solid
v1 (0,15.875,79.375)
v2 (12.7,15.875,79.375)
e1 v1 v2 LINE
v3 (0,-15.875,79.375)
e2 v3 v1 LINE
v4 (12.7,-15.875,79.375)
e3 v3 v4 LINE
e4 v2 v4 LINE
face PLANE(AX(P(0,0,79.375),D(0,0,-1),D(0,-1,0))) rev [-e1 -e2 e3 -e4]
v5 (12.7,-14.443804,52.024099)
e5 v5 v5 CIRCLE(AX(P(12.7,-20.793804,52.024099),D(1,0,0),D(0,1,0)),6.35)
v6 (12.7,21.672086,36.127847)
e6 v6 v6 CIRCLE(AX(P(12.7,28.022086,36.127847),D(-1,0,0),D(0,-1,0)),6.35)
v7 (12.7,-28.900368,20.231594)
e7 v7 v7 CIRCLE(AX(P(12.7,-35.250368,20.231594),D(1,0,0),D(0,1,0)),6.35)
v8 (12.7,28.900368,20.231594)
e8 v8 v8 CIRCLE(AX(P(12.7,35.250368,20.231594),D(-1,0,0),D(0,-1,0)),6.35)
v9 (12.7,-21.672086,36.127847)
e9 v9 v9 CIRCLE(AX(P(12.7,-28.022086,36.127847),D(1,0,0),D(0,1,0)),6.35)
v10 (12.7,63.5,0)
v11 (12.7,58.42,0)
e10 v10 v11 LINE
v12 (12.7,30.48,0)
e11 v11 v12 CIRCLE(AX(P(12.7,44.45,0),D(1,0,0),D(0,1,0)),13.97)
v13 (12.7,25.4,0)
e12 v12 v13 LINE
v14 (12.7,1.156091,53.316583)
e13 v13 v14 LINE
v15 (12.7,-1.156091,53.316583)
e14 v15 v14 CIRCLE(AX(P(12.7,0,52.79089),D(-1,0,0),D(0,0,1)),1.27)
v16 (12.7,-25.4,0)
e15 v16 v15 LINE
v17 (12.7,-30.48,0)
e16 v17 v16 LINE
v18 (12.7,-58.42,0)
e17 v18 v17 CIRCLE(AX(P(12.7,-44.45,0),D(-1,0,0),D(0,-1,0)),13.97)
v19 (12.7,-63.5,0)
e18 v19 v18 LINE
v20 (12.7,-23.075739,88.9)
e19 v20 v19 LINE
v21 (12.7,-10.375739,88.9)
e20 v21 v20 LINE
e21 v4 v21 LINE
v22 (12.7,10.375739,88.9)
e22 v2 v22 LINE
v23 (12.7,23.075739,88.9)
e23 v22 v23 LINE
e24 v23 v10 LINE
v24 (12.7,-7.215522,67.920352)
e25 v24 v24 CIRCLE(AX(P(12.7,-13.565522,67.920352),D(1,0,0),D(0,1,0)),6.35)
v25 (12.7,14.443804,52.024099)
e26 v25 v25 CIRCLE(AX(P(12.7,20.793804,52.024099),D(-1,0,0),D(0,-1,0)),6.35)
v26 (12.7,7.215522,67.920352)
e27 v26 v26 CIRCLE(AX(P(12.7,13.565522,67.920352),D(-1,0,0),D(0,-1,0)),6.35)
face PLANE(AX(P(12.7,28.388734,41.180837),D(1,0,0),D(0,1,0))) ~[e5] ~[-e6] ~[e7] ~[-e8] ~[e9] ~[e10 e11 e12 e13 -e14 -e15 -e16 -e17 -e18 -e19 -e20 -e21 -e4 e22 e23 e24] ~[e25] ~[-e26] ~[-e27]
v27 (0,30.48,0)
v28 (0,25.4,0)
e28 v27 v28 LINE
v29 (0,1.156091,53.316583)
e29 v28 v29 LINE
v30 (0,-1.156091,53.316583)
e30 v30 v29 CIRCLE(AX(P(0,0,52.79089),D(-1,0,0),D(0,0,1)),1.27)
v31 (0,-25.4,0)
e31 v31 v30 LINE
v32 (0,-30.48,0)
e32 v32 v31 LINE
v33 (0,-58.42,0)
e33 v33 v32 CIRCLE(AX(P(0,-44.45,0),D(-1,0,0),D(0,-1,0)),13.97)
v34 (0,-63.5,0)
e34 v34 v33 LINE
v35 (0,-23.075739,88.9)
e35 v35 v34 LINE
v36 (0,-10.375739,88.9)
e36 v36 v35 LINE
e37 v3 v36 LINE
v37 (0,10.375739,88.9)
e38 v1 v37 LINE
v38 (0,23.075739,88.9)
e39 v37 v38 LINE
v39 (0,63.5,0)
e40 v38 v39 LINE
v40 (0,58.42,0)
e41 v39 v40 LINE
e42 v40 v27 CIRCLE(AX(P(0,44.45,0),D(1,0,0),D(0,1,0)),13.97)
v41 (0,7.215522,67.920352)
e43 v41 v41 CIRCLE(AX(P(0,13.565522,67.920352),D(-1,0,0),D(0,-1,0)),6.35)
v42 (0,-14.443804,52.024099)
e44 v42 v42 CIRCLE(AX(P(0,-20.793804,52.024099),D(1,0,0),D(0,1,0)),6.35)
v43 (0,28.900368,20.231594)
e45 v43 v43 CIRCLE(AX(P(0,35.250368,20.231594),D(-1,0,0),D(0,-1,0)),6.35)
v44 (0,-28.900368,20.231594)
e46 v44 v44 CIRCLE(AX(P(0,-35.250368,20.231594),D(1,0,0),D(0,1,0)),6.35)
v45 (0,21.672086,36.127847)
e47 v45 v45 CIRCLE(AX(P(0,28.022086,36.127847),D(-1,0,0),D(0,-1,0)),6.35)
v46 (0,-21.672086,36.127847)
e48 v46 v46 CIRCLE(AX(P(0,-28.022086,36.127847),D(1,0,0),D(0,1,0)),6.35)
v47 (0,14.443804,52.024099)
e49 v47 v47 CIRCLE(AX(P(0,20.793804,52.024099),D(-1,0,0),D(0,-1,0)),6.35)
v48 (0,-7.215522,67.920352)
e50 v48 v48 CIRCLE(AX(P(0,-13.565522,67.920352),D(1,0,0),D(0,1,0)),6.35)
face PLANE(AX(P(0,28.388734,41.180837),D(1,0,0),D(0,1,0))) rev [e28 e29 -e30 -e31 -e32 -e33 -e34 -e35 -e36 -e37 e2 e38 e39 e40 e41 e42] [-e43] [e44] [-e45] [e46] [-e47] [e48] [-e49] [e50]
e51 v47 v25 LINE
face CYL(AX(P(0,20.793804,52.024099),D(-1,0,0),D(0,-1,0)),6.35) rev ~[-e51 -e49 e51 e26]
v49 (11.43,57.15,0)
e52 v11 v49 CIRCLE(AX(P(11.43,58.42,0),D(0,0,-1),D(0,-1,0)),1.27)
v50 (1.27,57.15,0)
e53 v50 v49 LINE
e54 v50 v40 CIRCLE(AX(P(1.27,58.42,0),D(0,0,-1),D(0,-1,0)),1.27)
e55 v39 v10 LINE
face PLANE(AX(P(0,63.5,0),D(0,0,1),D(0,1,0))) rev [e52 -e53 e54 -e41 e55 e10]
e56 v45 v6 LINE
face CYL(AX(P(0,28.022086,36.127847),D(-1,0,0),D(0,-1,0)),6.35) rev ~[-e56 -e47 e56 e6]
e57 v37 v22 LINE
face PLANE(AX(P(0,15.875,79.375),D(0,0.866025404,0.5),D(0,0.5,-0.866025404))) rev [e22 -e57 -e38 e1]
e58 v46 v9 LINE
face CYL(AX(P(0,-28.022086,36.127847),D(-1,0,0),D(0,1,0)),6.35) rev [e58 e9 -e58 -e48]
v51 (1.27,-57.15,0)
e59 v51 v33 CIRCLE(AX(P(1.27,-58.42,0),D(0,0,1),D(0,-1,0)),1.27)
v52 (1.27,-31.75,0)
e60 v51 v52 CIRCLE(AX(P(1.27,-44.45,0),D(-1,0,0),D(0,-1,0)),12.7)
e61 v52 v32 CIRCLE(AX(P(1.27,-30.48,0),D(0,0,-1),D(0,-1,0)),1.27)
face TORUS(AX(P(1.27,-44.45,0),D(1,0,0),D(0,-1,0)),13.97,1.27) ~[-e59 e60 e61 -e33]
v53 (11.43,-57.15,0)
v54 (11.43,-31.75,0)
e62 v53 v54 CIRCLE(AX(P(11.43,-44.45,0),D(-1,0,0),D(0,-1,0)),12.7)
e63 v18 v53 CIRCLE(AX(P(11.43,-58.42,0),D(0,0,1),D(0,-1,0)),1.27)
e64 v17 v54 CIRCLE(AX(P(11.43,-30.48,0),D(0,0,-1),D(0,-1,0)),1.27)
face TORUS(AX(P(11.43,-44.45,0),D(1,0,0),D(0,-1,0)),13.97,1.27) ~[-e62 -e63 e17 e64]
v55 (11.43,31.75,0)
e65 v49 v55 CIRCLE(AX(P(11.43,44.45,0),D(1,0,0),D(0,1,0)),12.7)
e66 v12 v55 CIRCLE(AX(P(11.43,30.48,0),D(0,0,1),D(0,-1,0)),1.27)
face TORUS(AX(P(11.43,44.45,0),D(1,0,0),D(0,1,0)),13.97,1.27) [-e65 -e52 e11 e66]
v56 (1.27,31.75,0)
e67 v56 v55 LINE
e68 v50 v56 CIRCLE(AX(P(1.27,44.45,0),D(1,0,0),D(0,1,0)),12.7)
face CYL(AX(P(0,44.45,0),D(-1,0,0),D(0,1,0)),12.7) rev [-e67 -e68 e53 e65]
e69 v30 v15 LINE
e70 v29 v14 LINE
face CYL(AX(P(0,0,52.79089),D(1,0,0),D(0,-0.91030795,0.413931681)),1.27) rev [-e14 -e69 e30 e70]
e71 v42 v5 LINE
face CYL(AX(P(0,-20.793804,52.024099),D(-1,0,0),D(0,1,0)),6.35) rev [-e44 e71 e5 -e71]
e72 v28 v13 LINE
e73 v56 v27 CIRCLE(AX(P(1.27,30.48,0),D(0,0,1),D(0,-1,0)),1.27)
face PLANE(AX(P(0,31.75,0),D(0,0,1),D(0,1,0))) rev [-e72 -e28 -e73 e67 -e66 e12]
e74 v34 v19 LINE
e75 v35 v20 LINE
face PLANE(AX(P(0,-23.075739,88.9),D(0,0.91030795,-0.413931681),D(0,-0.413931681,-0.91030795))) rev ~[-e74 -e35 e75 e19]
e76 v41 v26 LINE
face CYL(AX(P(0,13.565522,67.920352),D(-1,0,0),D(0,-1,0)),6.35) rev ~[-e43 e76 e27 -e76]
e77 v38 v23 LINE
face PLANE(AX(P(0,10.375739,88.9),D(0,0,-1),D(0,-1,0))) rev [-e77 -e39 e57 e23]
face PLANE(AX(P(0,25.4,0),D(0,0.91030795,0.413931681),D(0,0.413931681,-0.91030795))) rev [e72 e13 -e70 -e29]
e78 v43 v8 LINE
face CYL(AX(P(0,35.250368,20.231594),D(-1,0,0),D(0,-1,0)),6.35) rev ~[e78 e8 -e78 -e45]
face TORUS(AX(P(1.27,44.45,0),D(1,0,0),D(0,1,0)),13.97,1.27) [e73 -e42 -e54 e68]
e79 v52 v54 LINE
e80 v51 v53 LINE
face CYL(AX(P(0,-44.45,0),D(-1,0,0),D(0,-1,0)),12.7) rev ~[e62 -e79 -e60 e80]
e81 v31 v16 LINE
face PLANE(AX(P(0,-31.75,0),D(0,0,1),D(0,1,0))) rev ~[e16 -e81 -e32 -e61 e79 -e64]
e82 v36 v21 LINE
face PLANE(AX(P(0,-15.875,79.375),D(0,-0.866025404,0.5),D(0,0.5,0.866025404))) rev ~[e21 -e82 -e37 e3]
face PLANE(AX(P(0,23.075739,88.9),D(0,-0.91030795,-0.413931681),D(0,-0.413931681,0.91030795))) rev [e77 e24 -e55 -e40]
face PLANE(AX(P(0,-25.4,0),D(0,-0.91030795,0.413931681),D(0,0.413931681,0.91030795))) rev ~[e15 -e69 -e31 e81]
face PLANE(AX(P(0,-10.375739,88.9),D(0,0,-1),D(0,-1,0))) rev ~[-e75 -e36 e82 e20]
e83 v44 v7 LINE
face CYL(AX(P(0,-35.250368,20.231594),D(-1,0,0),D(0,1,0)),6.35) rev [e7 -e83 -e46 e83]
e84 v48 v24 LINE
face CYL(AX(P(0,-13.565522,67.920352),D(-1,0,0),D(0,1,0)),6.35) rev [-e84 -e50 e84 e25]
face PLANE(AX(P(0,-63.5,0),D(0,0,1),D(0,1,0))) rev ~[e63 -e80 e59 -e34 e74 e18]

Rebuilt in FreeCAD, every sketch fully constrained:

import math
import FreeCAD as App
import Part
import Sketcher

V = App.Vector
Q = App.Units.Quantity


def edges_at(feature, points):
    """Names of the edges that pass closest to the given points."""
    edges = feature.Shape.Edges
    near = lambda p: min(range(len(edges)), key=lambda i: edges[i].distToShape(Part.Vertex(*p))[0])
    return sorted({f"Edge{near(p) + 1}" for p in points})

doc = App.newDocument("Part")
body = doc.addObject("PartDesign::Body", "Body")

sketch1 = body.newObject("Sketcher::SketchObject", "Sketch")
sketch1.AttachmentSupport = (doc.getObject("YZ_Plane"), [""])
sketch1.MapMode = "FlatFace"
sketch1.addGeometry(Part.LineSegment(V(-23.075739, 88.9, 0), V(-63.5, 0, 0)), False)
sketch1.addGeometry(Part.LineSegment(V(-63.5, 0, 0), V(-57.15, 0, 0)), False)
sketch1.addGeometry(Part.ArcOfCircle(Part.Circle(V(-44.45, 0, 0), V(0, 0, 1), 12.7), math.radians(0), math.radians(180)), False)
sketch1.addGeometry(Part.LineSegment(V(-31.75, 0, 0), V(-25.4, 0, 0)), False)
sketch1.addGeometry(Part.LineSegment(V(-25.4, 0, 0), V(0, 55.859029, 0)), False)
sketch1.addGeometry(Part.LineSegment(V(0, 55.859029, 0), V(0, 79.375, 0)), False)
sketch1.addGeometry(Part.LineSegment(V(0, 79.375, 0), V(-15.875, 79.375, 0)), False)
sketch1.addGeometry(Part.LineSegment(V(-15.875, 79.375, 0), V(-10.375739, 88.9, 0)), False)
sketch1.addGeometry(Part.LineSegment(V(-10.375739, 88.9, 0), V(-23.075739, 88.9, 0)), False)
sketch1.addGeometry(Part.Circle(V(-35.250368, 20.231594, 0), V(0, 0, 1), 6.35), False)
sketch1.addGeometry(Part.Circle(V(-28.022086, 36.127847, 0), V(0, 0, 1), 6.35), False)
sketch1.addGeometry(Part.Circle(V(-20.793804, 52.024099, 0), V(0, 0, 1), 6.35), False)
sketch1.addGeometry(Part.Circle(V(-13.565522, 67.920352, 0), V(0, 0, 1), 6.35), False)
sketch1.addConstraint(Sketcher.Constraint("Coincident", 0, 2, 1, 1))
sketch1.addConstraint(Sketcher.Constraint("Coincident", 1, 2, 2, 2))
sketch1.addConstraint(Sketcher.Constraint("Coincident", 2, 1, 3, 1))
sketch1.addConstraint(Sketcher.Constraint("Coincident", 3, 2, 4, 1))
sketch1.addConstraint(Sketcher.Constraint("Coincident", 4, 2, 5, 1))
sketch1.addConstraint(Sketcher.Constraint("Coincident", 5, 2, 6, 1))
sketch1.addConstraint(Sketcher.Constraint("Coincident", 6, 2, 7, 1))
sketch1.addConstraint(Sketcher.Constraint("Coincident", 7, 2, 8, 1))
sketch1.addConstraint(Sketcher.Constraint("Coincident", 8, 2, 0, 1))
sketch1.addConstraint(Sketcher.Constraint("Horizontal", 1))
sketch1.addConstraint(Sketcher.Constraint("Horizontal", 3))
sketch1.addConstraint(Sketcher.Constraint("Vertical", 5))
sketch1.addConstraint(Sketcher.Constraint("Horizontal", 6))
sketch1.addConstraint(Sketcher.Constraint("Horizontal", 8))
sketch1.addConstraint(Sketcher.Constraint("Equal", 9, 10))
sketch1.addConstraint(Sketcher.Constraint("Equal", 10, 11))
sketch1.addConstraint(Sketcher.Constraint("Equal", 11, 12))
sketch1.addConstraint(Sketcher.Constraint("PointOnObject", 2, 3, -1))
sketch1.addConstraint(Sketcher.Constraint("PointOnObject", 0, 2, -1))
sketch1.addConstraint(Sketcher.Constraint("PointOnObject", 2, 1, -1))
sketch1.addConstraint(Sketcher.Constraint("PointOnObject", 4, 2, -2))
sketch1.addConstraint(Sketcher.Constraint("Parallel", 0, 4))
sketch1.addConstraint(Sketcher.Constraint("Equal", 1, 3))
sketch1.addConstraint(Sketcher.Constraint("Diameter", 9, Q("0.5 in")))
sketch1.addConstraint(Sketcher.Constraint("Radius", 2, Q("0.5 in")))
sketch1.addConstraint(Sketcher.Constraint("DistanceX", 8, 2, 8, 1, Q("0.5 in")))
sketch1.addConstraint(Sketcher.Constraint("DistanceX", 3, 2, -1, 1, Q("1 in")))
sketch1.addConstraint(Sketcher.Constraint("Angle", 7, Q("60 deg")))
sketch1.addConstraint(Sketcher.Constraint("DistanceX", 1, 1, 1, 2, Q("0.25 in")))
sketch1.addConstraint(Sketcher.Constraint("DistanceY", -1, 1, 7, 2, Q("3.5 in")))
sketch1.addConstraint(Sketcher.Constraint("DistanceX", 6, 2, 6, 1, Q("0.625 in")))
sketch1.addConstraint(Sketcher.Constraint("DistanceY", -1, 1, 5, 2, Q("3.125 in")))
sketch1.addConstraint(Sketcher.Constraint("DistanceY", -1, 1, 11, 3, 52.024099))
sketch1.addConstraint(Sketcher.Constraint("DistanceX", 9, 3, -1, 1, 35.250368))
sketch1.addConstraint(Sketcher.Constraint("DistanceY", -1, 1, 12, 3, 67.920352))
sketch1.addConstraint(Sketcher.Constraint("DistanceX", 9, 3, 10, 3, 7.228282))
sketch1.addConstraint(Sketcher.Constraint("DistanceX", 10, 3, 11, 3, 7.228282))
sketch1.addConstraint(Sketcher.Constraint("DistanceX", 11, 3, 12, 3, 7.228282))
sketch1.addConstraint(Sketcher.Constraint("DistanceY", -1, 1, 9, 3, 20.231594))
sketch1.addConstraint(Sketcher.Constraint("DistanceY", -1, 1, 10, 3, 36.127847))
pad1 = body.newObject("PartDesign::Pad", "Pad")
pad1.Profile = sketch1
pad1.Length = Q("0.5 in")
body2 = doc.addObject("PartDesign::Body", "Body001")
doc.recompute()

body2.BaseFeature = body
doc.recompute()

mirroring = doc.addObject("Part::Mirroring", "Mirroring")
mirroring.Source = body
mirroring.Base = V(0, 0, 0)
mirroring.Normal = V(0, -1, 0)
body3 = doc.addObject("PartDesign::Body", "Body002")
body3.BaseFeature = mirroring
boolean = body2.newObject("PartDesign::Boolean", "Boolean")
boolean.Type = "Fuse"
boolean.addObjects([body3])
doc.recompute()

fillet = body2.newObject("PartDesign::Fillet", "Fillet")
fillet.Base = (boolean, edges_at(boolean, [
    (12.7, 44.45, 12.7),
    (0, 44.45, 12.7),
    (0, -44.45, 12.7),
    (12.7, -44.45, 12.7),
    (6.35, 0, 55.859),
]))
fillet.Radius = Q("0.05 in")
mirroring.Visibility = False

doc.recompute()
